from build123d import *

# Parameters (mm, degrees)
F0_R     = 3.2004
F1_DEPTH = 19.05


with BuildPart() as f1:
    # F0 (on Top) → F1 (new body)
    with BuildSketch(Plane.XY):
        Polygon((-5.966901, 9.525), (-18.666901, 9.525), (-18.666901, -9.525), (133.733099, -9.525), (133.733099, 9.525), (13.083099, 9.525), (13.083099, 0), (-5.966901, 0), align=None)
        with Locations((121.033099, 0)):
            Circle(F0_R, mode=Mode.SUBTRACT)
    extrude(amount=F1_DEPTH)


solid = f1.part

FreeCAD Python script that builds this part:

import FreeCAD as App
import Part
import Sketcher
Q = App.Units.Quantity

doc = App.newDocument("Part")
body = doc.addObject("PartDesign::Body", "Body")

sketch1 = body.newObject("Sketcher::SketchObject", "Sketch")
sketch1.AttachmentSupport = (doc.getObject("XY_Plane"), [""])
sketch1.MapMode = "FlatFace"
sketch1.addGeometry(Part.LineSegment(App.Vector(-6, 9.5, 0), App.Vector(-18.7, 9.5, 0)), False)
sketch1.addGeometry(Part.LineSegment(App.Vector(-18.7, 9.5, 0), App.Vector(-18.7, -9.5, 0)), False)
sketch1.addGeometry(Part.LineSegment(App.Vector(-18.7, -9.5, 0), App.Vector(133.7, -9.5, 0)), False)
sketch1.addGeometry(Part.LineSegment(App.Vector(133.7, -9.5, 0), App.Vector(133.7, 9.5, 0)), False)
sketch1.addGeometry(Part.LineSegment(App.Vector(133.7, 9.5, 0), App.Vector(13.1, 9.5, 0)), False)
sketch1.addGeometry(Part.LineSegment(App.Vector(13.1, 9.5, 0), App.Vector(13.1, 0, 0)), False)
sketch1.addGeometry(Part.LineSegment(App.Vector(13.1, 0, 0), App.Vector(-6, 0, 0)), False)
sketch1.addGeometry(Part.LineSegment(App.Vector(-6, 0, 0), App.Vector(-6, 9.5, 0)), False)
sketch1.addGeometry(Part.Circle(App.Vector(121, 0, 0), App.Vector(0, 0, 1), 3.2), False)
sketch1.addConstraint(Sketcher.Constraint("Coincident", 0, 2, 1, 1))
sketch1.addConstraint(Sketcher.Constraint("Coincident", 1, 2, 2, 1))
sketch1.addConstraint(Sketcher.Constraint("Coincident", 2, 2, 3, 1))
sketch1.addConstraint(Sketcher.Constraint("Coincident", 3, 2, 4, 1))
sketch1.addConstraint(Sketcher.Constraint("Coincident", 4, 2, 5, 1))
sketch1.addConstraint(Sketcher.Constraint("Coincident", 5, 2, 6, 1))
sketch1.addConstraint(Sketcher.Constraint("Coincident", 6, 2, 7, 1))
sketch1.addConstraint(Sketcher.Constraint("Coincident", 7, 2, 0, 1))
sketch1.addConstraint(Sketcher.Constraint("Horizontal", 0))
sketch1.addConstraint(Sketcher.Constraint("Vertical", 1))
sketch1.addConstraint(Sketcher.Constraint("Horizontal", 2))
sketch1.addConstraint(Sketcher.Constraint("Vertical", 3))
sketch1.addConstraint(Sketcher.Constraint("Horizontal", 4))
sketch1.addConstraint(Sketcher.Constraint("Vertical", 5))
sketch1.addConstraint(Sketcher.Constraint("Horizontal", 6))
sketch1.addConstraint(Sketcher.Constraint("Vertical", 7))
sketch1.addConstraint(Sketcher.Constraint("PointOnObject", 8, 3, -1))
sketch1.addConstraint(Sketcher.Constraint("PointOnObject", 5, 2, -1))
sketch1.addConstraint(Sketcher.Constraint("Horizontal", 0, 2, 3, 2))
sketch1.addConstraint(Sketcher.Constraint("Equal", 6, 1))
sketch1.addConstraint(Sketcher.Constraint("DistanceX", 2, 1, 2, 2, Q("6 in")))
sketch1.addConstraint(Sketcher.Constraint("Diameter", 8, Q("0.252 in")))
sketch1.addConstraint(Sketcher.Constraint("DistanceX", 0, 2, 0, 1, Q("0.5 in")))
sketch1.addConstraint(Sketcher.Constraint("DistanceX", 6, 2, 8, 3, Q("5 in")))
sketch1.addConstraint(Sketcher.Constraint("DistanceX", 4, 2, 4, 1, Q("4.75 in")))
sketch1.addConstraint(Sketcher.Constraint("DistanceY", 5, 2, 5, 1, Q("0.375 in")))
sketch1.addConstraint(Sketcher.Constraint("DistanceX", -1, 1, 8, 3, 121.033099))
pad1 = body.newObject("PartDesign::Pad", "Pad")
pad1.Profile = sketch1
pad1.Length = Q("0.75 in")

doc.recompute()
